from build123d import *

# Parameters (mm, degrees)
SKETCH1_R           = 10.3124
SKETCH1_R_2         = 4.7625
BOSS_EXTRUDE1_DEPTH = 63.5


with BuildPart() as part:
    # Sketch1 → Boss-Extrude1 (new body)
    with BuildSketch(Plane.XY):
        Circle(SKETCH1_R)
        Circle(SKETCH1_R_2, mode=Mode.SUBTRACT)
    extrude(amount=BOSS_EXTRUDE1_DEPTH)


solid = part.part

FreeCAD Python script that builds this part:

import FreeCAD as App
import Part
import Sketcher

V = App.Vector
Q = App.Units.Quantity

doc = App.newDocument("Part")
params = doc.addObject("Spreadsheet::Sheet", "Params")
for row, (alias, value) in enumerate([
    ("sketch1_diameter", "0.812 in"),
    ("sketch1_diameter2", "0.375 in"),
    ("pad1_length", "2.5 in"),
], start=1):
    params.set(f"A{row}", alias)
    params.set(f"B{row}", "=" + value)
    params.setAlias(f"B{row}", alias)

body = doc.addObject("PartDesign::Body", "Body")

sketch1 = body.newObject("Sketcher::SketchObject", "Sketch")
sketch1.AttachmentSupport = (doc.getObject("XY_Plane"), [""])
sketch1.MapMode = "FlatFace"
sketch1.addGeometry([
    Part.Circle(V(0, 0, 0), V(0, 0, 1), 10.3124),
    Part.Circle(V(0, 0, 0), V(0, 0, 1), 4.7625),
], False)
sketch1.addConstraint([
    Sketcher.Constraint("Coincident", 0, 3, -1, 1),
    Sketcher.Constraint("Coincident", 1, 3, -1, 1),
    Sketcher.Constraint("Diameter", 0, Q("0.812 in")),
    Sketcher.Constraint("Diameter", 1, Q("0.375 in")),
])
sketch1.setExpression("Constraints[2]", "Params.sketch1_diameter")
sketch1.setExpression("Constraints[3]", "Params.sketch1_diameter2")
pad1 = body.newObject("PartDesign::Pad", "Pad")
pad1.Profile = sketch1
pad1.setExpression("Length", "Params.pad1_length")

doc.recompute()
